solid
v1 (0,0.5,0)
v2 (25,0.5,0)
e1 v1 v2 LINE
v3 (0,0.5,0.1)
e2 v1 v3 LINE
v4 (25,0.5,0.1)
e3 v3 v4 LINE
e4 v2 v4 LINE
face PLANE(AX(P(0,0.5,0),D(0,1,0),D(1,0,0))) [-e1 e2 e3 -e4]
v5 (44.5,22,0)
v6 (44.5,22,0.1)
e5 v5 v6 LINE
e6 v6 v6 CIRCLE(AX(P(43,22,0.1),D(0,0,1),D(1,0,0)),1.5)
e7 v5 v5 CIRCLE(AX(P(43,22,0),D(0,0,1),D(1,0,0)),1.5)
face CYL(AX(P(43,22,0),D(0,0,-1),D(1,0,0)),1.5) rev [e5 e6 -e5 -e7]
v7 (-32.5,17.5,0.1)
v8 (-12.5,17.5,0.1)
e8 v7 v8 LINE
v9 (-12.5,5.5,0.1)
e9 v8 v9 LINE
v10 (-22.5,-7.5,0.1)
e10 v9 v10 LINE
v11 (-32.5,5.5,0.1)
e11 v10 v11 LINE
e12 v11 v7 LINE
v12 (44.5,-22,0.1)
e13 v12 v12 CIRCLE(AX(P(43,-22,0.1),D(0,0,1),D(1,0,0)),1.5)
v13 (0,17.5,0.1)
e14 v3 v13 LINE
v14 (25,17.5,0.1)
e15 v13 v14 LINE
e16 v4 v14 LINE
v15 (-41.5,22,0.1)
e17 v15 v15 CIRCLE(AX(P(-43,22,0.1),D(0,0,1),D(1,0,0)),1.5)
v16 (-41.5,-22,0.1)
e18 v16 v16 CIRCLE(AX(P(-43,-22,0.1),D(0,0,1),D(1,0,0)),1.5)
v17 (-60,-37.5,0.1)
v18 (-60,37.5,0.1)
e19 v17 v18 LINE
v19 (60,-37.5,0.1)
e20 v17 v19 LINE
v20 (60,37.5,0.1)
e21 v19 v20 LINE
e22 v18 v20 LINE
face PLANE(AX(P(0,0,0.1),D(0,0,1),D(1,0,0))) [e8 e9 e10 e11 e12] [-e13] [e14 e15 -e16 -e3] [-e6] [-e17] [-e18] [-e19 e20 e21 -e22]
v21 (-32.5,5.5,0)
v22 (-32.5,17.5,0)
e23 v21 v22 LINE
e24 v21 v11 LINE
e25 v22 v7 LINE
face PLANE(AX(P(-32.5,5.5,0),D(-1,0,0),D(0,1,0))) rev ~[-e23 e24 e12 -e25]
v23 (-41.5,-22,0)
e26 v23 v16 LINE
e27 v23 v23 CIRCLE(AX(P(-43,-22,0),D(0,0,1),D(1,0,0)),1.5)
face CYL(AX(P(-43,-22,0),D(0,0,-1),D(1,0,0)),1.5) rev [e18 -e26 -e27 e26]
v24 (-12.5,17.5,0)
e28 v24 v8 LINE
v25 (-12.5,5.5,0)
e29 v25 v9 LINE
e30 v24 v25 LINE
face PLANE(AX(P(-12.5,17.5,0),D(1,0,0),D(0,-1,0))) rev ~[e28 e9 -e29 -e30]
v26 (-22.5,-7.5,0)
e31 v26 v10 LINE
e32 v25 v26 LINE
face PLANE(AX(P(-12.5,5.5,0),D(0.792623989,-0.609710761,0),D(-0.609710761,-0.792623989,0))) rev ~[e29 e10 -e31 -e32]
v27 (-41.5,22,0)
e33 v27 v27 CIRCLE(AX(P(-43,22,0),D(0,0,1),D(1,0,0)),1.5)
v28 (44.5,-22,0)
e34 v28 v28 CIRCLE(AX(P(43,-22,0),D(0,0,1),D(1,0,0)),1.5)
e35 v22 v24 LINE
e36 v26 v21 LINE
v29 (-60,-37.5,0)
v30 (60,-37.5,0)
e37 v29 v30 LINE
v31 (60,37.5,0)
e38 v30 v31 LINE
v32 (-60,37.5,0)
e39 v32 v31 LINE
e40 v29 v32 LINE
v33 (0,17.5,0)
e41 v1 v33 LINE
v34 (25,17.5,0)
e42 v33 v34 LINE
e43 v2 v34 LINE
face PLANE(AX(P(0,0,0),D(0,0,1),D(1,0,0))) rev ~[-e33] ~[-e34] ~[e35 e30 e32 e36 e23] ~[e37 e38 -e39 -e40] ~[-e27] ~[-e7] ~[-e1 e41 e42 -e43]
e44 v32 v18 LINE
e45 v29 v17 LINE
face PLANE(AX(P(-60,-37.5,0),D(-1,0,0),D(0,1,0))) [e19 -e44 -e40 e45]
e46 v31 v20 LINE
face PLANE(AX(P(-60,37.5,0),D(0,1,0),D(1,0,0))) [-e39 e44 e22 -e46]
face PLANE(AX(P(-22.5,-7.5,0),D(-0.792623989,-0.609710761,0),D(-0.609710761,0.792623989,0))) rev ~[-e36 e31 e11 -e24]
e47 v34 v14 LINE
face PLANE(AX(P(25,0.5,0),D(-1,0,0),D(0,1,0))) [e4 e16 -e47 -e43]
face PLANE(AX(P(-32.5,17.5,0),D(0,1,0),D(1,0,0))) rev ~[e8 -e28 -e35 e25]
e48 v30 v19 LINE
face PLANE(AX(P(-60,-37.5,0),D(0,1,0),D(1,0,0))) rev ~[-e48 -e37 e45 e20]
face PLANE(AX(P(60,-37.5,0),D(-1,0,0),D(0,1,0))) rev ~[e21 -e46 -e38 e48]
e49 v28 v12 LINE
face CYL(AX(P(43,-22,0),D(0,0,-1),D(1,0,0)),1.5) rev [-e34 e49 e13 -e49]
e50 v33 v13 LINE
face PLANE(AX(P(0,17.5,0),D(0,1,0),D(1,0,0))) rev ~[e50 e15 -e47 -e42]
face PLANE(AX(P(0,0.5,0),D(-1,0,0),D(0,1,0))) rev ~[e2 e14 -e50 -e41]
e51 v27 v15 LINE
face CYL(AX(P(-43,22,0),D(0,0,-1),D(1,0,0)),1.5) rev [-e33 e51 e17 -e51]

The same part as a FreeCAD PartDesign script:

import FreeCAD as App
import Part
import Sketcher
from FreeCAD import Vector

doc = App.newDocument("Part")
body = doc.addObject("PartDesign::Body", "Body")

sketch1 = body.newObject("Sketcher::SketchObject", "Sketch")
sketch1.AttachmentSupport = (doc.getObject("XY_Plane"), [""])
sketch1.MapMode = "FlatFace"
sketch1.addGeometry(Part.LineSegment(Vector(-60, 37.5, 0), Vector(-60, -37.5, 0)), False)
sketch1.addGeometry(Part.LineSegment(Vector(-60, -37.5, 0), Vector(60, -37.5, 0)), False)
sketch1.addGeometry(Part.LineSegment(Vector(60, -37.5, 0), Vector(60, 37.5, 0)), False)
sketch1.addGeometry(Part.LineSegment(Vector(60, 37.5, 0), Vector(-60, 37.5, 0)), False)
sketch1.addGeometry(Part.Circle(Vector(-43, -22, 0), Vector(0, 0, 1), 1.5), False)
sketch1.addGeometry(Part.Circle(Vector(43, -22, 0), Vector(0, 0, 1), 1.5), False)
sketch1.addGeometry(Part.LineSegment(Vector(-32.5, 5.5, 0), Vector(-32.5, 17.5, 0)), False)
sketch1.addGeometry(Part.LineSegment(Vector(-32.5, 17.5, 0), Vector(-12.5, 17.5, 0)), False)
sketch1.addGeometry(Part.LineSegment(Vector(-12.5, 17.5, 0), Vector(-12.5, 5.5, 0)), False)
sketch1.addGeometry(Part.LineSegment(Vector(-12.5, 5.5, 0), Vector(-22.5, -7.5, 0)), False)
sketch1.addGeometry(Part.LineSegment(Vector(-22.5, -7.5, 0), Vector(-32.5, 5.5, 0)), False)
sketch1.addGeometry(Part.Circle(Vector(-43, 22, 0), Vector(0, 0, 1), 1.5), False)
sketch1.addGeometry(Part.LineSegment(Vector(25, 0.5, 0), Vector(0, 0.5, 0)), False)
sketch1.addGeometry(Part.LineSegment(Vector(0, 0.5, 0), Vector(0, 17.5, 0)), False)
sketch1.addGeometry(Part.LineSegment(Vector(0, 17.5, 0), Vector(25, 17.5, 0)), False)
sketch1.addGeometry(Part.LineSegment(Vector(25, 17.5, 0), Vector(25, 0.5, 0)), False)
sketch1.addGeometry(Part.Circle(Vector(43, 22, 0), Vector(0, 0, 1), 1.5), False)
sketch1.addConstraint(Sketcher.Constraint("Coincident", 0, 2, 1, 1))
sketch1.addConstraint(Sketcher.Constraint("Coincident", 1, 2, 2, 1))
sketch1.addConstraint(Sketcher.Constraint("Coincident", 2, 2, 3, 1))
sketch1.addConstraint(Sketcher.Constraint("Coincident", 3, 2, 0, 1))
sketch1.addConstraint(Sketcher.Constraint("Coincident", 6, 2, 7, 1))
sketch1.addConstraint(Sketcher.Constraint("Coincident", 7, 2, 8, 1))
sketch1.addConstraint(Sketcher.Constraint("Coincident", 8, 2, 9, 1))
sketch1.addConstraint(Sketcher.Constraint("Coincident", 9, 2, 10, 1))
sketch1.addConstraint(Sketcher.Constraint("Coincident", 10, 2, 6, 1))
sketch1.addConstraint(Sketcher.Constraint("Coincident", 12, 2, 13, 1))
sketch1.addConstraint(Sketcher.Constraint("Coincident", 13, 2, 14, 1))
sketch1.addConstraint(Sketcher.Constraint("Coincident", 14, 2, 15, 1))
sketch1.addConstraint(Sketcher.Constraint("Coincident", 15, 2, 12, 1))
sketch1.addConstraint(Sketcher.Constraint("Vertical", 0))
sketch1.addConstraint(Sketcher.Constraint("Horizontal", 1))
sketch1.addConstraint(Sketcher.Constraint("Vertical", 2))
sketch1.addConstraint(Sketcher.Constraint("Horizontal", 3))
sketch1.addConstraint(Sketcher.Constraint("Vertical", 6))
sketch1.addConstraint(Sketcher.Constraint("Horizontal", 7))
sketch1.addConstraint(Sketcher.Constraint("Vertical", 8))
sketch1.addConstraint(Sketcher.Constraint("Horizontal", 12))
sketch1.addConstraint(Sketcher.Constraint("Vertical", 13))
sketch1.addConstraint(Sketcher.Constraint("Horizontal", 14))
sketch1.addConstraint(Sketcher.Constraint("Vertical", 15))
sketch1.addConstraint(Sketcher.Constraint("Equal", 4, 5))
sketch1.addConstraint(Sketcher.Constraint("Equal", 5, 11))
sketch1.addConstraint(Sketcher.Constraint("Equal", 11, 16))
sketch1.addConstraint(Sketcher.Constraint("Symmetric", 5, 3, 11, 3, -1, 1))
sketch1.addConstraint(Sketcher.Constraint("Symmetric", 4, 3, 16, 3, -1, 1))
sketch1.addConstraint(Sketcher.Constraint("Symmetric", 0, 2, 2, 2, -1, 1))
sketch1.addConstraint(Sketcher.Constraint("Symmetric", 4, 3, 5, 3, -2))
sketch1.addConstraint(Sketcher.Constraint("PointOnObject", 12, 2, -2))
sketch1.addConstraint(Sketcher.Constraint("Horizontal", 8, 2, 10, 2))
sketch1.addConstraint(Sketcher.Constraint("Horizontal", 7, 2, 13, 2))
sketch1.addConstraint(Sketcher.Constraint("Equal", 9, 10))
sketch1.addConstraint(Sketcher.Constraint("Diameter", 4, 3.0))
sketch1.addConstraint(Sketcher.Constraint("DistanceX", 1, 1, 1, 2, 120.0))
sketch1.addConstraint(Sketcher.Constraint("DistanceX", 7, 1, 7, 2, 20.0))
sketch1.addConstraint(Sketcher.Constraint("DistanceX", 12, 2, 12, 1, 25.0))
sketch1.addConstraint(Sketcher.Constraint("DistanceY", 0, 2, 0, 1, 75.0))
sketch1.addConstraint(Sketcher.Constraint("DistanceY", 6, 1, 6, 2, 12.0))
sketch1.addConstraint(Sketcher.Constraint("DistanceY", 13, 1, 13, 2, 17.0))
sketch1.addConstraint(Sketcher.Constraint("DistanceX", 4, 3, -1, 1, 43.0))
sketch1.addConstraint(Sketcher.Constraint("DistanceY", 4, 3, -1, 1, 22.0))
sketch1.addConstraint(Sketcher.Constraint("DistanceY", 6, 2, 3, 2, 20.0))
sketch1.addConstraint(Sketcher.Constraint("DistanceY", 9, 2, 8, 2, 13.0))
sketch1.addConstraint(Sketcher.Constraint("DistanceX", 6, 2, -1, 1, 32.5))
pad1 = body.newObject("PartDesign::Pad", "Pad")
pad1.Profile = sketch1
pad1.Length = 0.1

doc.recompute()
